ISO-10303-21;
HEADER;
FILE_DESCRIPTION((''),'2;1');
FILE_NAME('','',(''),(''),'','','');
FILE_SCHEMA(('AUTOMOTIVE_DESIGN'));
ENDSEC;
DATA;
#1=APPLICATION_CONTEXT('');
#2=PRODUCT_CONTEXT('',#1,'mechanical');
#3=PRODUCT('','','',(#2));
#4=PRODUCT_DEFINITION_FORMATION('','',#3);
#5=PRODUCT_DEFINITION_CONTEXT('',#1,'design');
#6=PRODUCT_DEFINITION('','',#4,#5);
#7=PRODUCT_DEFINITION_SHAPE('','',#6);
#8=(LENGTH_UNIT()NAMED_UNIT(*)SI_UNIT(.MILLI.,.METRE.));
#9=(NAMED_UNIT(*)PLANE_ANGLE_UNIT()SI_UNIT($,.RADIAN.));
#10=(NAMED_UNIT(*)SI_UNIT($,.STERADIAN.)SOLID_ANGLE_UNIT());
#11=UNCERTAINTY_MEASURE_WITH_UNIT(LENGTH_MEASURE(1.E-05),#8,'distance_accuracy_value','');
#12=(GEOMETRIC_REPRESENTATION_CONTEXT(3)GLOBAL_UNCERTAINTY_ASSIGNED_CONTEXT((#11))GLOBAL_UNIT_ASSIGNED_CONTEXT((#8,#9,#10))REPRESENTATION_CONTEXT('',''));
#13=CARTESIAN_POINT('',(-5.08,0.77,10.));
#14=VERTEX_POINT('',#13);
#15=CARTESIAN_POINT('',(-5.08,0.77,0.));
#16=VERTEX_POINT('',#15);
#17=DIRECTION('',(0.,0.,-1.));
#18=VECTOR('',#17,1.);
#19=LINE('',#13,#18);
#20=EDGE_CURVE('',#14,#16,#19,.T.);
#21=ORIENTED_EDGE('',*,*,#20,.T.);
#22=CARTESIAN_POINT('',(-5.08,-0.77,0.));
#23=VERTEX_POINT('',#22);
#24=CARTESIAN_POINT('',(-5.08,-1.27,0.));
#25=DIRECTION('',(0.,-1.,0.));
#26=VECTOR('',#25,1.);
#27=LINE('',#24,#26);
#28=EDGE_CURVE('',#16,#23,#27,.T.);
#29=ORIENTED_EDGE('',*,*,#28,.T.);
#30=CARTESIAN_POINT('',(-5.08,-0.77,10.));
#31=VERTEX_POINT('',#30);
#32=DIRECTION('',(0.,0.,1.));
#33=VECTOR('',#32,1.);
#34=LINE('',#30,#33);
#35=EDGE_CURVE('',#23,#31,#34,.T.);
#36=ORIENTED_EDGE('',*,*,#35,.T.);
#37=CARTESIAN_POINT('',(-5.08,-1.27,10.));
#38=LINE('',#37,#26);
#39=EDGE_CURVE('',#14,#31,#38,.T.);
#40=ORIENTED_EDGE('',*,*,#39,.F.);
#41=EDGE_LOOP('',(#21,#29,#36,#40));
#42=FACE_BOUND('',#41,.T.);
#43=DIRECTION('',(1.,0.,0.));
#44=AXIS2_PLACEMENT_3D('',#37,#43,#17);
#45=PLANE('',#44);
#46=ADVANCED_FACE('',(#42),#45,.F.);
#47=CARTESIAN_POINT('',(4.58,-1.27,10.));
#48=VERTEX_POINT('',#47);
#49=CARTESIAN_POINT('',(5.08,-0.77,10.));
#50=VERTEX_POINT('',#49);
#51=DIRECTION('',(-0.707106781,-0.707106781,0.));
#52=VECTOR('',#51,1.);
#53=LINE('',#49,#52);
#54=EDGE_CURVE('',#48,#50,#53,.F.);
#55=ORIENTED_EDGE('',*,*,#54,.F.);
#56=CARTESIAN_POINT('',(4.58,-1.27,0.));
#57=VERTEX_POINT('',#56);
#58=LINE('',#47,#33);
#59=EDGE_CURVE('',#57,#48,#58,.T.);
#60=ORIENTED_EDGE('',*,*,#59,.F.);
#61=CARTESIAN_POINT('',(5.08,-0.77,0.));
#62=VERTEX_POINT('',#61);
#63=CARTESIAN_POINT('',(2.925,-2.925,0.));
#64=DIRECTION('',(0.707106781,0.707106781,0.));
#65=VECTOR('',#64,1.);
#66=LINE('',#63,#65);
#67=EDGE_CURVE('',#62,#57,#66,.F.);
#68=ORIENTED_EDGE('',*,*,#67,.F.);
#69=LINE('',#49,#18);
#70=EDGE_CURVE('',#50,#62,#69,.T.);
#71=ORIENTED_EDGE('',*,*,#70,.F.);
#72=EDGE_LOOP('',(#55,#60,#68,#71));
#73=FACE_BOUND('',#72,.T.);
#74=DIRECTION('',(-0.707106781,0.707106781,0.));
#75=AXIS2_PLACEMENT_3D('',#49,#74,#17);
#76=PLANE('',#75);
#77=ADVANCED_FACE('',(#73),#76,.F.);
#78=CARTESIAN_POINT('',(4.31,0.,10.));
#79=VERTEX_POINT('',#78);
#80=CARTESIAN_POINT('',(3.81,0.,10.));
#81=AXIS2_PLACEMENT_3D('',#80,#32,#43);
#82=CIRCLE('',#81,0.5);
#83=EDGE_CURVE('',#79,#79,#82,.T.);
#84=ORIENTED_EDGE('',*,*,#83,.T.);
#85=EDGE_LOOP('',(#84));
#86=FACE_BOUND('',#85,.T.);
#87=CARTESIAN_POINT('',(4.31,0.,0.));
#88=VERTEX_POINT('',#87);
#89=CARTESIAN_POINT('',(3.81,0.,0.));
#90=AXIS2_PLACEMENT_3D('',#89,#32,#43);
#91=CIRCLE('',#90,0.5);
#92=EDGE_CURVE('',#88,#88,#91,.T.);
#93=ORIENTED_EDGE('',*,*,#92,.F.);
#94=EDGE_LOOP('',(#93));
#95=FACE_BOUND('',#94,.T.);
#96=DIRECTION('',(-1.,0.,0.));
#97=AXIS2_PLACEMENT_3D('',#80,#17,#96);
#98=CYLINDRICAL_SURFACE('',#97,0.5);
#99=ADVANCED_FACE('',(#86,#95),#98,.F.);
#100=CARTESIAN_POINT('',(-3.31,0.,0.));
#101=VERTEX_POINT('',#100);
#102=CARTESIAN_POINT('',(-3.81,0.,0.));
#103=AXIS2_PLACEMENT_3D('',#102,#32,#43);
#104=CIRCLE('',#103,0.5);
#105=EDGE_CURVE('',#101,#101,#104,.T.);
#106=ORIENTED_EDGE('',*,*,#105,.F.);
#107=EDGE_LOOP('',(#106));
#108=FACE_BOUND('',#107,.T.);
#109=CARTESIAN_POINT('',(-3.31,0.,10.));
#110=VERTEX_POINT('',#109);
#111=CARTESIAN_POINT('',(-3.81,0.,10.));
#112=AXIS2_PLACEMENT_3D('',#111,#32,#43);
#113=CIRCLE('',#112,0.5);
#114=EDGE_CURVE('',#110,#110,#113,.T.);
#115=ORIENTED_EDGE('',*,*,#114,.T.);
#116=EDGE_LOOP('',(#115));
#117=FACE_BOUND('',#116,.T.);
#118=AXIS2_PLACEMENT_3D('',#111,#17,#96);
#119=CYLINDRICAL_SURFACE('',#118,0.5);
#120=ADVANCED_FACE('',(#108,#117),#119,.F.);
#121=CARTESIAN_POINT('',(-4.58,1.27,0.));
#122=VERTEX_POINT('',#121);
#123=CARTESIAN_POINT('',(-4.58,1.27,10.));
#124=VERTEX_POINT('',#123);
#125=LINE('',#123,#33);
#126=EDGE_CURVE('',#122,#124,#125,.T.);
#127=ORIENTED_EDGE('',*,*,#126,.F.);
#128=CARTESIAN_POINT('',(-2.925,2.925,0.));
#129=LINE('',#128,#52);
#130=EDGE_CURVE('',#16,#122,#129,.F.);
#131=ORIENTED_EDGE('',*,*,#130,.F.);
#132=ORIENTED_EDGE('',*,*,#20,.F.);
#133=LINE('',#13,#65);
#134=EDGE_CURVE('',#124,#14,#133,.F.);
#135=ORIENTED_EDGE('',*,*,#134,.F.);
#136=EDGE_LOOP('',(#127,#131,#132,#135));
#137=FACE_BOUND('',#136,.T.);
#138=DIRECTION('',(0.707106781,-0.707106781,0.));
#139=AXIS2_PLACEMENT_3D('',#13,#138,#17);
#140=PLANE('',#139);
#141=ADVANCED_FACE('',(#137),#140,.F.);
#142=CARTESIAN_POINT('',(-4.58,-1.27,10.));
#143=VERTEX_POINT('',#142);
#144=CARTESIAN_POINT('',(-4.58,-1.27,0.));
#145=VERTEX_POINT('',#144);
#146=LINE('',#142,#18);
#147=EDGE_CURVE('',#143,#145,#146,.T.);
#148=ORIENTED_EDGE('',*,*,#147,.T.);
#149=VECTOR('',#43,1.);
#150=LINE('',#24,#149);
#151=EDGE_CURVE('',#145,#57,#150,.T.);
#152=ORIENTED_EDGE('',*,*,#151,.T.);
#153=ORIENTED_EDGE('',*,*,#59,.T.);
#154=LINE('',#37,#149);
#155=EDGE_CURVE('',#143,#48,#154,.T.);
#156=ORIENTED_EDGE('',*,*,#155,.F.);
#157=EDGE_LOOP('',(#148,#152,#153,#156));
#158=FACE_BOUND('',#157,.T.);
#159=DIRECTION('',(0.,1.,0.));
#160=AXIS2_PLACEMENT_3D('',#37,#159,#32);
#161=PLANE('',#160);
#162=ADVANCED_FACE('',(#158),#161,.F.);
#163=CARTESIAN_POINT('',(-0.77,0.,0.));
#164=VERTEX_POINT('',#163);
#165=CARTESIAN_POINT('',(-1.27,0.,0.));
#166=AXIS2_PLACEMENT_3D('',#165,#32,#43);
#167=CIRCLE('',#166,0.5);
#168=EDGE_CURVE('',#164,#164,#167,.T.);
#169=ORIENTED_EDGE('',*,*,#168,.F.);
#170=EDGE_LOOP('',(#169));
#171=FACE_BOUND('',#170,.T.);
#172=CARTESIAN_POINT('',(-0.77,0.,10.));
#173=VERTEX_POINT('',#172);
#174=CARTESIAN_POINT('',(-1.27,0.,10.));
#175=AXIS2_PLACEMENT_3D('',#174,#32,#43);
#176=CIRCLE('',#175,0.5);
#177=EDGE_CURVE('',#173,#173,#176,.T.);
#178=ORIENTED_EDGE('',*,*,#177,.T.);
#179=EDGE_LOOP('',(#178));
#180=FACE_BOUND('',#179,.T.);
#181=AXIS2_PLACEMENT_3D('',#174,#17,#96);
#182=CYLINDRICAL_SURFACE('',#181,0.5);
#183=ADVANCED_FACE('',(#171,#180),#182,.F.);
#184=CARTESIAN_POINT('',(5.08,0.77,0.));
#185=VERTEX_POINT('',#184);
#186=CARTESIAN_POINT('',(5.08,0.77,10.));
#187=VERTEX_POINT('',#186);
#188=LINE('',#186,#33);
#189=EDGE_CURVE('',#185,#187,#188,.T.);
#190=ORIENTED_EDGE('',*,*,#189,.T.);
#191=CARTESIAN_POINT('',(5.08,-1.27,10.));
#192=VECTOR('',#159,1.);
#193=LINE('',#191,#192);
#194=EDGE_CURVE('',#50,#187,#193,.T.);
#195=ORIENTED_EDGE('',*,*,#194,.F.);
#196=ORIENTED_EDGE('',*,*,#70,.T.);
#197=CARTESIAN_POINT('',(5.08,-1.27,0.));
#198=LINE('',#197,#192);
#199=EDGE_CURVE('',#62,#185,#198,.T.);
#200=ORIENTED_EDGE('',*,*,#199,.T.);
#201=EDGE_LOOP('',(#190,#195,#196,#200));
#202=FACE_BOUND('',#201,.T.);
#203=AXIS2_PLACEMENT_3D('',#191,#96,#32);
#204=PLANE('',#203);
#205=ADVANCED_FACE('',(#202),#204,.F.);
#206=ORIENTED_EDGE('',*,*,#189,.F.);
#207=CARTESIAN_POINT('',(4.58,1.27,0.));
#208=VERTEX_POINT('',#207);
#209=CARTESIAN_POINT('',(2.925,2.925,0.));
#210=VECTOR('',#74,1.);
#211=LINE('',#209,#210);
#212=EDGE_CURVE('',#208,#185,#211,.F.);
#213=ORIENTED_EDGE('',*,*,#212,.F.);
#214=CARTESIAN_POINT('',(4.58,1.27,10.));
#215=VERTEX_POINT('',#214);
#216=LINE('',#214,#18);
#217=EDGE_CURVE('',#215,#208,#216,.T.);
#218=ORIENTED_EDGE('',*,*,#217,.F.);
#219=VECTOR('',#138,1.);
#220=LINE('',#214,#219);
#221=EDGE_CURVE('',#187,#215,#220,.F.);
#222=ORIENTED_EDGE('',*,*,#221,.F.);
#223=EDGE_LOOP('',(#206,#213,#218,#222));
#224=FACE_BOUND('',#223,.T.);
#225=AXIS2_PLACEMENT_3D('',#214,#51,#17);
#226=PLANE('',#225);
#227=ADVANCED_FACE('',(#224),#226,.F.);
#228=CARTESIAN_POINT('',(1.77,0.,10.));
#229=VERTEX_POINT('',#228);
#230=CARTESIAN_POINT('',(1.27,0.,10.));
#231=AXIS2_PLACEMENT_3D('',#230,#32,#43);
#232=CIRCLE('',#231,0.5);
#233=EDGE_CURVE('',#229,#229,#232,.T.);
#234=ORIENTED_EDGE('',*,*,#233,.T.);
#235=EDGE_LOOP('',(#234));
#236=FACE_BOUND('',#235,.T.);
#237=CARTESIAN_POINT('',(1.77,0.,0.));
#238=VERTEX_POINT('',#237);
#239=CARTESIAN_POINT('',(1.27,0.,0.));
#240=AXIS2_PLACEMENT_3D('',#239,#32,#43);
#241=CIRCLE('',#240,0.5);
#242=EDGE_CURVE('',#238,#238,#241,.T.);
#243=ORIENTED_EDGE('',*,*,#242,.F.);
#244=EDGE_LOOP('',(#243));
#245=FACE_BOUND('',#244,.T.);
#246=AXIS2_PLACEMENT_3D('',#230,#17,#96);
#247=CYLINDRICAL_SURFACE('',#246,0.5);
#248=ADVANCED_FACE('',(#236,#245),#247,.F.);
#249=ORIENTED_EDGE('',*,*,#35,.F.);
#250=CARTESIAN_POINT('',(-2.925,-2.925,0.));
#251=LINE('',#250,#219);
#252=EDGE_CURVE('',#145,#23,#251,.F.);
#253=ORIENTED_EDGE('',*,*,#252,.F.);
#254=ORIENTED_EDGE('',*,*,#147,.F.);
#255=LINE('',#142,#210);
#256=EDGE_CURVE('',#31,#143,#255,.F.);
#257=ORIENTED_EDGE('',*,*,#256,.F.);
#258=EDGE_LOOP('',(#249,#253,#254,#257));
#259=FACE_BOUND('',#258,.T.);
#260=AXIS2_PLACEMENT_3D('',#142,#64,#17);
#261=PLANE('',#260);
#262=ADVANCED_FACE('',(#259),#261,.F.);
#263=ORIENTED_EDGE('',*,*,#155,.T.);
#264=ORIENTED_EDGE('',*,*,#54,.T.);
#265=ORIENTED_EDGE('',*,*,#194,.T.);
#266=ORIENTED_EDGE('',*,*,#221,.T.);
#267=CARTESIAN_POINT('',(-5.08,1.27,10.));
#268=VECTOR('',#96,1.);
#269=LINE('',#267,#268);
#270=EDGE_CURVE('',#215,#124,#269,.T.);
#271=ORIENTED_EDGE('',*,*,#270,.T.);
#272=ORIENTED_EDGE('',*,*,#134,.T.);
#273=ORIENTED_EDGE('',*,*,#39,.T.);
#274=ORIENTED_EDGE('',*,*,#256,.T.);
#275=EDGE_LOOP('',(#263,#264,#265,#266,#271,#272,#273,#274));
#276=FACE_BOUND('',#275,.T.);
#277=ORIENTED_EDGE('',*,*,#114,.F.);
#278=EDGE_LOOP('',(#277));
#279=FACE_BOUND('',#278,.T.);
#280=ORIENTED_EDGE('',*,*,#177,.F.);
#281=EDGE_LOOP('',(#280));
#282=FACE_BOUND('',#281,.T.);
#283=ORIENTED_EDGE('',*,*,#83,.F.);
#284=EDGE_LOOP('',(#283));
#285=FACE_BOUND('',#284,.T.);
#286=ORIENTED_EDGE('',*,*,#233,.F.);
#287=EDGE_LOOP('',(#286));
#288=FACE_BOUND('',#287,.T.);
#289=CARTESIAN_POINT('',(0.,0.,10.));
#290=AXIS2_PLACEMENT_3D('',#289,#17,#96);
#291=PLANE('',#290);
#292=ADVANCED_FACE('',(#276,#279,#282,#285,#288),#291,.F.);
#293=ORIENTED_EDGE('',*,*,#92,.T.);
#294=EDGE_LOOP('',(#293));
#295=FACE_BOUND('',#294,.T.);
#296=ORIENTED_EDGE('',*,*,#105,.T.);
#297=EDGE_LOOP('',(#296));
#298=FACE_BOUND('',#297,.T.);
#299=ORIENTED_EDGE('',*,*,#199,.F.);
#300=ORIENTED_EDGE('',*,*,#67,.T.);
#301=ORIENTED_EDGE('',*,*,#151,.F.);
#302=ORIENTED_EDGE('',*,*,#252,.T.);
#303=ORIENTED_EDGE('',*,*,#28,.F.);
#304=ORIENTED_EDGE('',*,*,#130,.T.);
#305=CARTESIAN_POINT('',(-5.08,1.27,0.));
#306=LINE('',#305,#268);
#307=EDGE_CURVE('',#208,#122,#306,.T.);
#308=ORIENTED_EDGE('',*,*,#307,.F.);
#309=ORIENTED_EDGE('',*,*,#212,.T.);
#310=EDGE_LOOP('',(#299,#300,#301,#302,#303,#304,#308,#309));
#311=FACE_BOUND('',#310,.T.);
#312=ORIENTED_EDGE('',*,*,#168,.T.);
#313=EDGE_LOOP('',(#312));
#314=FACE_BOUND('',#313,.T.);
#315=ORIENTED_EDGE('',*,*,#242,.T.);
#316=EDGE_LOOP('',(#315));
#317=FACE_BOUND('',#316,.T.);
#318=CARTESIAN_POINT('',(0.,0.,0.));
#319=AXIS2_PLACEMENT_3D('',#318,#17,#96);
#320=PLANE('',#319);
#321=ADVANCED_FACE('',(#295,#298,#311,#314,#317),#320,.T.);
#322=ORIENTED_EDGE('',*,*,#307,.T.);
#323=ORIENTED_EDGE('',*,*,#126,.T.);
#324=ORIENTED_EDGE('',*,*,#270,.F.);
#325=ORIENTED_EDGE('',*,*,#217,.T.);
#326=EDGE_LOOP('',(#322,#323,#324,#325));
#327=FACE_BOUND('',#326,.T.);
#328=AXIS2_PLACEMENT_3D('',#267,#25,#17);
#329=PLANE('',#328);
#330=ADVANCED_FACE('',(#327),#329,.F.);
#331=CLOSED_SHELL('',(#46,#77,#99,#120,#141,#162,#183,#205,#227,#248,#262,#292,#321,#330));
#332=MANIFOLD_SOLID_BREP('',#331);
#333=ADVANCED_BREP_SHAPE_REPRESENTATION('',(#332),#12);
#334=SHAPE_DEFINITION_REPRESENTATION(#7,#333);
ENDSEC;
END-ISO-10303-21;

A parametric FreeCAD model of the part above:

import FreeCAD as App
import Part
import Sketcher

V = App.Vector


def edges_at(feature, points):
    """Names of the edges that pass closest to the given points."""
    edges = feature.Shape.Edges
    near = lambda p: min(range(len(edges)), key=lambda i: edges[i].distToShape(Part.Vertex(*p))[0])
    return sorted({f"Edge{near(p) + 1}" for p in points})

doc = App.newDocument("Part")
body = doc.addObject("PartDesign::Body", "Body")

# Sketch on XY plane
sketch1 = doc.addObject("Sketcher::SketchObject", "Sketch")
body.addObject(sketch1)
sketch1.AttachmentSupport = (doc.XY_Plane, [""])
sketch1.MapMode = "FlatFace"
sketch1.addGeometry([
    Part.LineSegment(V(-5.1, 1.3, 0), V(-5.1, -1.3, 0)),  # 0
    Part.LineSegment(V(-5.1, -1.3, 0), V(5.1, -1.3, 0)),  # 1
    Part.LineSegment(V(5.1, -1.3, 0), V(5.1, 1.3, 0)),  # 2
    Part.LineSegment(V(5.1, 1.3, 0), V(-5.1, 1.3, 0)),  # 3
    Part.Circle(V(-3.8, 0, 0), V(0, 0, 1), 0.5),  # 4
    Part.Circle(V(-1.3, 0, 0), V(0, 0, 1), 0.5),  # 5
    Part.Circle(V(1.3, 0, 0), V(0, 0, 1), 0.5),  # 6
    Part.Circle(V(3.8, 0, 0), V(0, 0, 1), 0.5),  # 7
], False)
sketch1.addConstraint([
    Sketcher.Constraint("Coincident", 0, 2, 1, 1),
    Sketcher.Constraint("Coincident", 1, 2, 2, 1),
    Sketcher.Constraint("Coincident", 2, 2, 3, 1),
    Sketcher.Constraint("Coincident", 3, 2, 0, 1),
    Sketcher.Constraint("Vertical", 0),
    Sketcher.Constraint("Horizontal", 1),
    Sketcher.Constraint("Vertical", 2),
    Sketcher.Constraint("Horizontal", 3),
    Sketcher.Constraint("Equal", 4, 5),
    Sketcher.Constraint("Equal", 5, 6),
    Sketcher.Constraint("Equal", 6, 7),
    Sketcher.Constraint("Symmetric", 5, 3, 6, 3, -1, 1),
    Sketcher.Constraint("Symmetric", 4, 3, 7, 3, -1, 1),
    Sketcher.Constraint("Symmetric", 0, 2, 2, 2, -1, 1),
    Sketcher.Constraint("PointOnObject", 4, 3, -1),
    Sketcher.Constraint("PointOnObject", 5, 3, -1),
    Sketcher.Constraint("Diameter", 4, 1.0),
    Sketcher.Constraint("DistanceX", 1, 1, 1, 2, 10.16),
    Sketcher.Constraint("DistanceY", 0, 2, 0, 1, 2.54),
    Sketcher.Constraint("DistanceX", 4, 3, -1, 1, 3.81),
    Sketcher.Constraint("DistanceX", 5, 3, -1, 1, 1.27),
])
pad1 = doc.addObject("PartDesign::Pad", "Pad")
body.addObject(pad1)
pad1.Profile = sketch1
pad1.Length = 10
doc.recompute()

chamfer = doc.addObject("PartDesign::Chamfer", "Chamfer")
body.addObject(chamfer)
chamfer.Base = (pad1, edges_at(pad1, [
    (5.08, -1.27, 5),
    (-5.08, -1.27, 5),
    (-5.08, 1.27, 5),
    (5.08, 1.27, 5),
]))
chamfer.Size = 0.5

doc.recompute()
